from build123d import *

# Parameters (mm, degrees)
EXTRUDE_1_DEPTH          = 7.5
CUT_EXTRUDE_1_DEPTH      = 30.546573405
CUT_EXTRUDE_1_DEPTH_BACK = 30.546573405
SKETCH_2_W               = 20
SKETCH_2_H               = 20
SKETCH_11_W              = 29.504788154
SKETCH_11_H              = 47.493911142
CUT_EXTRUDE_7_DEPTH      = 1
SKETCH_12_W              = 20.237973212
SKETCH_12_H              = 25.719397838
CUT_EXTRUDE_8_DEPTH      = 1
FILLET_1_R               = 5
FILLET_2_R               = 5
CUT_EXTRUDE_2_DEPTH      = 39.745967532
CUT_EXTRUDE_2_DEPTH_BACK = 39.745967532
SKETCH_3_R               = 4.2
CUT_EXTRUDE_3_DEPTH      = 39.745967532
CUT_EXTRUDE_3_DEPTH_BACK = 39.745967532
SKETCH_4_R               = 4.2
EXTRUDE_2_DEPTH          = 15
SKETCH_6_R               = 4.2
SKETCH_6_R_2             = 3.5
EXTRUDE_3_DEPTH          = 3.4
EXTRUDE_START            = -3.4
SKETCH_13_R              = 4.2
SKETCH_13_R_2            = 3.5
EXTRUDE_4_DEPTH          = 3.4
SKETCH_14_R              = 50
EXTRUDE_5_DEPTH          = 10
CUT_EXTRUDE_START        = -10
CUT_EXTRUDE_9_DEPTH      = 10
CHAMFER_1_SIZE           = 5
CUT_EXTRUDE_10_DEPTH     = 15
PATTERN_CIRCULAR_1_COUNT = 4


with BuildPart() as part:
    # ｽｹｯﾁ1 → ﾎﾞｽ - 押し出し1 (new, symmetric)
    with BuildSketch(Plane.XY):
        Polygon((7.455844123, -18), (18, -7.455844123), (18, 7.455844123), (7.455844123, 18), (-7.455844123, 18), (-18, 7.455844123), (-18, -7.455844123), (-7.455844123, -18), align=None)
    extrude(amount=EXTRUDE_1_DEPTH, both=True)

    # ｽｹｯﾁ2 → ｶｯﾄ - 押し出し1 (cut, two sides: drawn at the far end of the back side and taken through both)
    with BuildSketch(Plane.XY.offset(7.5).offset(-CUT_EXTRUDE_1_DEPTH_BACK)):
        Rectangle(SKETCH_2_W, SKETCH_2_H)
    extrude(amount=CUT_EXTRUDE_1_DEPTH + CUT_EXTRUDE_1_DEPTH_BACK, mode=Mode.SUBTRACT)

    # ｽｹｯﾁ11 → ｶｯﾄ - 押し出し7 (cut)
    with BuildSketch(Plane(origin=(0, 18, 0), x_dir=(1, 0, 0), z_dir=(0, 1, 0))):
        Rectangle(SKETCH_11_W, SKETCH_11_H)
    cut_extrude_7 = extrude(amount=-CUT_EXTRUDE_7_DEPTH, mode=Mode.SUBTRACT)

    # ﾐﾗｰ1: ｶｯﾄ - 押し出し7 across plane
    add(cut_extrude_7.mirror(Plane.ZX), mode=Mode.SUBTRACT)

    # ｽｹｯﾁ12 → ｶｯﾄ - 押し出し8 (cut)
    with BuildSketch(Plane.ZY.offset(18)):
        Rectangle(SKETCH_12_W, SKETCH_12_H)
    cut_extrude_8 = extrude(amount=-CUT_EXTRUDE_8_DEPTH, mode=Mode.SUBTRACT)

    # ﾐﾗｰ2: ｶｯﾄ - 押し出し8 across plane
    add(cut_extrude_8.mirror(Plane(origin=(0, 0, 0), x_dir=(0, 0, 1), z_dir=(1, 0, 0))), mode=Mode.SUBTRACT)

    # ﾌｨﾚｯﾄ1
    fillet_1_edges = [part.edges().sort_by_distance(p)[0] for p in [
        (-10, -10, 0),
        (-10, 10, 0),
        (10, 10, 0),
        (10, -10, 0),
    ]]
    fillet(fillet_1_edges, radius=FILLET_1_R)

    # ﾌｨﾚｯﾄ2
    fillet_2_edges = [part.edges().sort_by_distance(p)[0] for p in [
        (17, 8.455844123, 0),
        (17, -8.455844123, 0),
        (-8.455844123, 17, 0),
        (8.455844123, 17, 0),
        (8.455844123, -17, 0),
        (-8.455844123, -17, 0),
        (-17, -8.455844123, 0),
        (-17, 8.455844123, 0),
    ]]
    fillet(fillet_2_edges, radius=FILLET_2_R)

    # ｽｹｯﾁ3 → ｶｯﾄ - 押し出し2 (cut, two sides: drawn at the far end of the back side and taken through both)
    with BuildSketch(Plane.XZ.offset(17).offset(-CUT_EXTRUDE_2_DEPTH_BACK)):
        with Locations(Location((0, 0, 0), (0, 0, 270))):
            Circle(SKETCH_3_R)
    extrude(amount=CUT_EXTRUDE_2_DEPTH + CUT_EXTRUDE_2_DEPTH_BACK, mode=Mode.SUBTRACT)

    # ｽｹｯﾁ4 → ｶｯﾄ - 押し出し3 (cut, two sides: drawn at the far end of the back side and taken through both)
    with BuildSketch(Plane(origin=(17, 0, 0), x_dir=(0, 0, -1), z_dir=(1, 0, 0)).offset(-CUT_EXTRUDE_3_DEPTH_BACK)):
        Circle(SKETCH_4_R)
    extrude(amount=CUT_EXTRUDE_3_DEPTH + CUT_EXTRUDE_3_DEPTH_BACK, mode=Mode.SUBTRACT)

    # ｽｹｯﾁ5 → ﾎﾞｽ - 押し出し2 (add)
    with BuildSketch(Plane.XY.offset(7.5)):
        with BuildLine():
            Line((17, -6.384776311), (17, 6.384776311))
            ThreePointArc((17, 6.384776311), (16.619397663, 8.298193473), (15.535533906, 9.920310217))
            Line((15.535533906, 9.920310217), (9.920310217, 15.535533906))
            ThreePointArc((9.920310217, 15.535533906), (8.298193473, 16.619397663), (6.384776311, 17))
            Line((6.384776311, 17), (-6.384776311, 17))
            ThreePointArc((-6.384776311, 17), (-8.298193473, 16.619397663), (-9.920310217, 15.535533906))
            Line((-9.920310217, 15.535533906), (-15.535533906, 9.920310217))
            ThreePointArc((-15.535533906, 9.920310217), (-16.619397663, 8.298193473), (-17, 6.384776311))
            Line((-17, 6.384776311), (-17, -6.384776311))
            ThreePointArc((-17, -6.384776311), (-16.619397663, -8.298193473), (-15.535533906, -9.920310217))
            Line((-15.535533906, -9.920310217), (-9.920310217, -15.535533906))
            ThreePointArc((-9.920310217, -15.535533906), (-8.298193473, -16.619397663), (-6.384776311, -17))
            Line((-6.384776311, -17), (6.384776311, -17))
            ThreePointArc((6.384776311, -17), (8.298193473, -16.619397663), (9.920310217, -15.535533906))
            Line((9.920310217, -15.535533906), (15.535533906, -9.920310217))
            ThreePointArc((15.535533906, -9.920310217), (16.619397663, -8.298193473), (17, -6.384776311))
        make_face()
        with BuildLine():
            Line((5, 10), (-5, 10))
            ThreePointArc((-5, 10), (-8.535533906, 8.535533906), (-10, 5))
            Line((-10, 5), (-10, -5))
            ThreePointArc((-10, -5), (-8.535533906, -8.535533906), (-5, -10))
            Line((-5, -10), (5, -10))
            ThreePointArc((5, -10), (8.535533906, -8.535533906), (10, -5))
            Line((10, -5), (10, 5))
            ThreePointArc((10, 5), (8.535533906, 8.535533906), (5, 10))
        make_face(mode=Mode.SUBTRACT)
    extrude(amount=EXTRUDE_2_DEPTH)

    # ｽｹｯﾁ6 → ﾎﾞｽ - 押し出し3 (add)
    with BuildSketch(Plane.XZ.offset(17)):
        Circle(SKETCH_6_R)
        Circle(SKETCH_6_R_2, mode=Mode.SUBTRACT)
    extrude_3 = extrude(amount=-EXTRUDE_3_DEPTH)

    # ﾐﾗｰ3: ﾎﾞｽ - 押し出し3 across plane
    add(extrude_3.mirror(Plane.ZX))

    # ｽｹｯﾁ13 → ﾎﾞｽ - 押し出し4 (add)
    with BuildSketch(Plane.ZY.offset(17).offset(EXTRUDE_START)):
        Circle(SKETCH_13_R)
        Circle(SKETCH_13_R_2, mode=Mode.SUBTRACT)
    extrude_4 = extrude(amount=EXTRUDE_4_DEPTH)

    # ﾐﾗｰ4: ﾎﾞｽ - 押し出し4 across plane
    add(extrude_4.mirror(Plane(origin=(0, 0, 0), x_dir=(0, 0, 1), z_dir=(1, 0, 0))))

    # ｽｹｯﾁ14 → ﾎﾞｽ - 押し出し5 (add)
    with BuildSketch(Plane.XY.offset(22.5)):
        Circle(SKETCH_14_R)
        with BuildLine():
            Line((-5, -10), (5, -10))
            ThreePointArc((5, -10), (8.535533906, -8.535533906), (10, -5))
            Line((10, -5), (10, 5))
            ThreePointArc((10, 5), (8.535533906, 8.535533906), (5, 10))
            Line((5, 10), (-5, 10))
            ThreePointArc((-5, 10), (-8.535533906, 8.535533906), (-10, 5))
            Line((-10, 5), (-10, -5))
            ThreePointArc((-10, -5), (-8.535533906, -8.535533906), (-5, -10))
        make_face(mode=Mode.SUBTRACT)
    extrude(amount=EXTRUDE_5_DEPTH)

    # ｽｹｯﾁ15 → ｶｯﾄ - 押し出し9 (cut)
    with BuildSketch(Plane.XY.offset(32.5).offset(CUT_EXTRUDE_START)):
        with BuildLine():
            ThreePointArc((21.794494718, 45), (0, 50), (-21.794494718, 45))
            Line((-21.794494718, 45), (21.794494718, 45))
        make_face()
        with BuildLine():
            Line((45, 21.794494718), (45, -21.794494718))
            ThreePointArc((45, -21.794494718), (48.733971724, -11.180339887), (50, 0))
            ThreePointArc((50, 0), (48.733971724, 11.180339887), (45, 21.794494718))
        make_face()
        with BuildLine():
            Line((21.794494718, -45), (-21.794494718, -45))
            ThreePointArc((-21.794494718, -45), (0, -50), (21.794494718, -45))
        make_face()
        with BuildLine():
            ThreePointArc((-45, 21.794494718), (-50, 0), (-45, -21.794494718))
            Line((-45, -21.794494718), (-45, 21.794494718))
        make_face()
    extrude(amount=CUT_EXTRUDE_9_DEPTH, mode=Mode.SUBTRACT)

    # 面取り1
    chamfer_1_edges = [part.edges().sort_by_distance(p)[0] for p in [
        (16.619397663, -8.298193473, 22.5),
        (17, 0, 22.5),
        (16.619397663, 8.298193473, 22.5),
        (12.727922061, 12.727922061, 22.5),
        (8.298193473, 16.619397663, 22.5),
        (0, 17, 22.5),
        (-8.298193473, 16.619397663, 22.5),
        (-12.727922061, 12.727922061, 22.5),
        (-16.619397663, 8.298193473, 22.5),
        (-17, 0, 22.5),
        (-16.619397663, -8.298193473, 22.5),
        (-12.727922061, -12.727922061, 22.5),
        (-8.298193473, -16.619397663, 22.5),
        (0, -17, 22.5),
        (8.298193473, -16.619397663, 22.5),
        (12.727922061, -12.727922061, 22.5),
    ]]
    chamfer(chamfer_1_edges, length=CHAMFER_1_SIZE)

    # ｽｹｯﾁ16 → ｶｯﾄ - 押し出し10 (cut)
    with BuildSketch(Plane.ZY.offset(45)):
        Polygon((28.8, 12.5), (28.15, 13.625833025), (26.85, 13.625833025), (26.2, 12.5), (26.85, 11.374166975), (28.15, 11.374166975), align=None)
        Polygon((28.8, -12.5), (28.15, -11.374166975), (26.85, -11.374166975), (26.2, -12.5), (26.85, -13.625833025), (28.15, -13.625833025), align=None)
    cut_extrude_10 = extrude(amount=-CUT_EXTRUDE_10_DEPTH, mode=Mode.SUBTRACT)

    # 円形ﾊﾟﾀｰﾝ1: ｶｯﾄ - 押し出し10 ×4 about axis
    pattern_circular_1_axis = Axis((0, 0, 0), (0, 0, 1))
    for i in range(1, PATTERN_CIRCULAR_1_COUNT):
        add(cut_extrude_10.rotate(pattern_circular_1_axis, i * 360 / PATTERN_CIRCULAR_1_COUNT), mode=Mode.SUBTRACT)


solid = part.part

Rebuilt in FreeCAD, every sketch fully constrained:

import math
import FreeCAD as App
import Part
import Sketcher

V = App.Vector
Q = App.Units.Quantity


def edges_at(feature, points):
    """Names of the edges that pass closest to the given points."""
    edges = feature.Shape.Edges
    near = lambda p: min(range(len(edges)), key=lambda i: edges[i].distToShape(Part.Vertex(*p))[0])
    return sorted({f"Edge{near(p) + 1}" for p in points})


def add_polygon(sketch, points):
    """Adds a closed chain of lines whose ends are joined by coincident constraints."""
    first, n = sketch.GeometryCount, len(points)
    for a, b in zip(points, points[1:] + points[:1]):
        sketch.addGeometry(Part.LineSegment(App.Vector(*a, 0), App.Vector(*b, 0)), False)
    for i in range(n):
        sketch.addConstraint(Sketcher.Constraint("Coincident", first + i, 2, first + (i + 1) % n, 1))

doc = App.newDocument("Part")
body = doc.addObject("PartDesign::Body", "Body")

# Sketch on XY plane
sketch1 = body.newObject("Sketcher::SketchObject", "Sketch")
sketch1.AttachmentSupport = (doc.getObject("XY_Plane"), [""])
sketch1.MapMode = "FlatFace"
add_polygon(sketch1, [(7, -18), (18, -7), (18, 7), (7, 18), (-7, 18), (-18, 7), (-18, -7), (-7, -18)])  # lines 0-7
sketch1.addConstraint(Sketcher.Constraint("Vertical", 1))
sketch1.addConstraint(Sketcher.Constraint("Horizontal", 3))
sketch1.addConstraint(Sketcher.Constraint("Vertical", 5))
sketch1.addConstraint(Sketcher.Constraint("Horizontal", 7))
sketch1.addConstraint(Sketcher.Constraint("Symmetric", 0, 2, 4, 2, -1, 1))
sketch1.addConstraint(Sketcher.Constraint("Symmetric", 2, 2, 6, 2, -1, 1))
sketch1.addConstraint(Sketcher.Constraint("Perpendicular", 0, 2))
sketch1.addConstraint(Sketcher.Constraint("Perpendicular", 2, 4))
sketch1.addConstraint(Sketcher.Constraint("Perpendicular", 4, 6))
sketch1.addConstraint(Sketcher.Constraint("Horizontal", 1, 2, 4, 2))
sketch1.addConstraint(Sketcher.Constraint("Vertical", 3, 2, 6, 2))
sketch1.addConstraint(Sketcher.Constraint("Equal", 7, 1))
sketch1.addConstraint(Sketcher.Constraint("DistanceX", -1, 1, 0, 2, Q("18 mm")))
sketch1.addConstraint(Sketcher.Constraint("DistanceX", 3, 2, 3, 1, Q("14.911688 mm")))
pad1 = body.newObject("PartDesign::Pad", "Pad")
pad1.Profile = sketch1
pad1.Length = 15
pad1.Midplane = True

# Sketch on XY plane
sketch2 = body.newObject("Sketcher::SketchObject", "Sketch001")
sketch2.AttachmentSupport = (doc.getObject("XY_Plane"), [""])
sketch2.MapMode = "FlatFace"
sketch2.AttachmentOffset = App.Placement(V(0, 0, 7.5), App.Rotation())
add_polygon(sketch2, [(-10, 10), (-10, -10), (10, -10), (10, 10)])  # lines 0-3
sketch2.addConstraint(Sketcher.Constraint("Vertical", 0))
sketch2.addConstraint(Sketcher.Constraint("Horizontal", 1))
sketch2.addConstraint(Sketcher.Constraint("Vertical", 2))
sketch2.addConstraint(Sketcher.Constraint("Horizontal", 3))
sketch2.addConstraint(Sketcher.Constraint("Symmetric", 0, 2, 2, 2, -1, 1))
sketch2.addConstraint(Sketcher.Constraint("Equal", 3, 0))
sketch2.addConstraint(Sketcher.Constraint("DistanceX", 1, 1, 1, 2, Q("20 mm")))
pocket1 = body.newObject("PartDesign::Pocket", "Pocket")
pocket1.Profile = sketch2
pocket1.Type = "ThroughAll"
pocket1.Midplane = True

# Sketch on XZ plane
sketch3 = body.newObject("Sketcher::SketchObject", "Sketch002")
sketch3.AttachmentSupport = (doc.getObject("XZ_Plane"), [""])
sketch3.MapMode = "FlatFace"
sketch3.AttachmentOffset = App.Placement(V(0, 0, -18), App.Rotation())
add_polygon(sketch3, [(-15, -24), (-15, 24), (15, 24), (15, -24)])  # lines 0-3
sketch3.addConstraint(Sketcher.Constraint("Vertical", 0))
sketch3.addConstraint(Sketcher.Constraint("Horizontal", 1))
sketch3.addConstraint(Sketcher.Constraint("Vertical", 2))
sketch3.addConstraint(Sketcher.Constraint("Horizontal", 3))
sketch3.addConstraint(Sketcher.Constraint("Symmetric", 0, 2, 2, 2, -1, 1))
sketch3.addConstraint(Sketcher.Constraint("DistanceX", 1, 1, 1, 2, Q("29.504788 mm")))
sketch3.addConstraint(Sketcher.Constraint("DistanceY", 0, 1, 0, 2, Q("47.493911 mm")))
pocket2 = body.newObject("PartDesign::Pocket", "Pocket001")
pocket2.Profile = sketch3
pocket2.Length = 1
pocket2.Reversed = True
doc.recompute()

mirrored = body.newObject("PartDesign::Mirrored", "Mirrored")
mirrored.Originals = [pocket2]
mirrored.MirrorPlane = (doc.getObject("XZ_Plane"), [""])
body.Tip = mirrored

# Sketch on YZ plane
sketch4 = body.newObject("Sketcher::SketchObject", "Sketch003")
sketch4.AttachmentSupport = (doc.getObject("YZ_Plane"), [""])
sketch4.MapMode = "FlatFace"
sketch4.AttachmentOffset = App.Placement(V(0, 0, -18), App.Rotation())
add_polygon(sketch4, [(13, -10), (-13, -10), (-13, 10), (13, 10)])  # lines 0-3
sketch4.addConstraint(Sketcher.Constraint("Horizontal", 0))
sketch4.addConstraint(Sketcher.Constraint("Vertical", 1))
sketch4.addConstraint(Sketcher.Constraint("Horizontal", 2))
sketch4.addConstraint(Sketcher.Constraint("Vertical", 3))
sketch4.addConstraint(Sketcher.Constraint("Symmetric", 0, 2, 2, 2, -1, 1))
sketch4.addConstraint(Sketcher.Constraint("DistanceX", 0, 2, -1, 1, Q("12.859699 mm")))
sketch4.addConstraint(Sketcher.Constraint("DistanceY", 1, 1, 1, 2, Q("20.237973 mm")))
pocket3 = body.newObject("PartDesign::Pocket", "Pocket002")
pocket3.Profile = sketch4
pocket3.Length = 1
pocket3.Reversed = True
doc.recompute()

mirrored2 = body.newObject("PartDesign::Mirrored", "Mirrored001")
mirrored2.Originals = [pocket3]
mirrored2.MirrorPlane = (doc.getObject("YZ_Plane"), [""])
body.Tip = mirrored2
doc.recompute()

fillet = body.newObject("PartDesign::Fillet", "Fillet")
fillet.Base = (mirrored2, edges_at(mirrored2, [
    (-10, -10, 0),
    (-10, 10, 0),
    (10, 10, 0),
    (10, -10, 0),
]))
fillet.Radius = 5
doc.recompute()

fillet2 = body.newObject("PartDesign::Fillet", "Fillet001")
fillet2.Base = (fillet, edges_at(fillet, [
    (17, 8.456, 0),
    (17, -8.456, 0),
    (-8.456, 17, 0),
    (8.456, 17, 0),
    (8.456, -17, 0),
    (-8.456, -17, 0),
    (-17, -8.456, 0),
    (-17, 8.456, 0),
]))
fillet2.Radius = 5

# Sketch on XZ plane
sketch5 = body.newObject("Sketcher::SketchObject", "Sketch004")
sketch5.AttachmentSupport = (doc.getObject("XZ_Plane"), [""])
sketch5.MapMode = "FlatFace"
sketch5.AttachmentOffset = App.Placement(V(0, 0, 17), App.Rotation())
sketch5.addGeometry(Part.Circle(V(0, 0, 0), V(0, 0, 1), 4.2), False)
sketch5.addConstraint(Sketcher.Constraint("Coincident", 0, 3, -1, 1))
sketch5.addConstraint(Sketcher.Constraint("Diameter", 0, Q("8.4 mm")))
pocket4 = body.newObject("PartDesign::Pocket", "Pocket003")
pocket4.Profile = sketch5
pocket4.Type = "ThroughAll"
pocket4.Midplane = True

# Sketch on YZ plane
sketch6 = body.newObject("Sketcher::SketchObject", "Sketch005")
sketch6.AttachmentSupport = (doc.getObject("YZ_Plane"), [""])
sketch6.MapMode = "FlatFace"
sketch6.AttachmentOffset = App.Placement(V(0, 0, 17), App.Rotation())
sketch6.addGeometry(Part.Circle(V(0, 0, 0), V(0, 0, 1), 4.2), False)
sketch6.addConstraint(Sketcher.Constraint("Coincident", 0, 3, -1, 1))
sketch6.addConstraint(Sketcher.Constraint("Diameter", 0, Q("8.4 mm")))
pocket5 = body.newObject("PartDesign::Pocket", "Pocket004")
pocket5.Profile = sketch6
pocket5.Type = "ThroughAll"
pocket5.Midplane = True

# Sketch on XY plane
sketch7 = body.newObject("Sketcher::SketchObject", "Sketch006")
sketch7.AttachmentSupport = (doc.getObject("XY_Plane"), [""])
sketch7.MapMode = "FlatFace"
sketch7.AttachmentOffset = App.Placement(V(0, 0, 7.5), App.Rotation())
sketch7.addGeometry(Part.LineSegment(V(17, -6.4, 0), V(17, 6.4, 0)), False)
sketch7.addGeometry(Part.ArcOfCircle(Part.Circle(V(12, 6.4, 0), V(0, 0, 1), 5), math.radians(0), math.radians(45)), False)
sketch7.addGeometry(Part.LineSegment(V(15.5, 9.9, 0), V(9.9, 15.5, 0)), False)
sketch7.addGeometry(Part.ArcOfCircle(Part.Circle(V(6.4, 12, 0), V(0, 0, 1), 5), math.radians(45), math.radians(90)), False)
sketch7.addGeometry(Part.LineSegment(V(6.4, 17, 0), V(-6.4, 17, 0)), False)
sketch7.addGeometry(Part.ArcOfCircle(Part.Circle(V(-6.4, 12, 0), V(0, 0, 1), 5), math.radians(90), math.radians(135)), False)
sketch7.addGeometry(Part.LineSegment(V(-9.9, 15.5, 0), V(-15.5, 9.9, 0)), False)
sketch7.addGeometry(Part.ArcOfCircle(Part.Circle(V(-12, 6.4, 0), V(0, 0, 1), 5), math.radians(135), math.radians(180)), False)
sketch7.addGeometry(Part.LineSegment(V(-17, 6.4, 0), V(-17, -6.4, 0)), False)
sketch7.addGeometry(Part.ArcOfCircle(Part.Circle(V(-12, -6.4, 0), V(0, 0, 1), 5), math.radians(180), math.radians(225)), False)
sketch7.addGeometry(Part.LineSegment(V(-15.5, -9.9, 0), V(-9.9, -15.5, 0)), False)
sketch7.addGeometry(Part.ArcOfCircle(Part.Circle(V(-6.4, -12, 0), V(0, 0, 1), 5), math.radians(-135), math.radians(-90)), False)
sketch7.addGeometry(Part.LineSegment(V(-6.4, -17, 0), V(6.4, -17, 0)), False)
sketch7.addGeometry(Part.ArcOfCircle(Part.Circle(V(6.4, -12, 0), V(0, 0, 1), 5), math.radians(-90), math.radians(-45)), False)
sketch7.addGeometry(Part.LineSegment(V(9.9, -15.5, 0), V(15.5, -9.9, 0)), False)
sketch7.addGeometry(Part.ArcOfCircle(Part.Circle(V(12, -6.4, 0), V(0, 0, 1), 5), math.radians(-45), math.radians(0)), False)
sketch7.addGeometry(Part.LineSegment(V(-5, 10, 0), V(5, 10, 0)), False)
sketch7.addGeometry(Part.ArcOfCircle(Part.Circle(V(5, 5, 0), V(0, 0, 1), 5), math.radians(0), math.radians(90)), False)
sketch7.addGeometry(Part.LineSegment(V(10, 5, 0), V(10, -5, 0)), False)
sketch7.addGeometry(Part.ArcOfCircle(Part.Circle(V(5, -5, 0), V(0, 0, 1), 5), math.radians(-90), math.radians(0)), False)
sketch7.addGeometry(Part.LineSegment(V(5, -10, 0), V(-5, -10, 0)), False)
sketch7.addGeometry(Part.ArcOfCircle(Part.Circle(V(-5, -5, 0), V(0, 0, 1), 5), math.radians(180), math.radians(270)), False)
sketch7.addGeometry(Part.LineSegment(V(-10, -5, 0), V(-10, 5, 0)), False)
sketch7.addGeometry(Part.ArcOfCircle(Part.Circle(V(-5, 5, 0), V(0, 0, 1), 5), math.radians(90), math.radians(180)), False)
sketch7.addConstraint(Sketcher.Constraint("Tangent", 0, 2, 1, 1))
sketch7.addConstraint(Sketcher.Constraint("Tangent", 1, 2, 2, 1))
sketch7.addConstraint(Sketcher.Constraint("Tangent", 2, 2, 3, 1))
sketch7.addConstraint(Sketcher.Constraint("Tangent", 3, 2, 4, 1))
sketch7.addConstraint(Sketcher.Constraint("Tangent", 4, 2, 5, 1))
sketch7.addConstraint(Sketcher.Constraint("Tangent", 5, 2, 6, 1))
sketch7.addConstraint(Sketcher.Constraint("Tangent", 6, 2, 7, 1))
sketch7.addConstraint(Sketcher.Constraint("Tangent", 7, 2, 8, 1))
sketch7.addConstraint(Sketcher.Constraint("Tangent", 8, 2, 9, 1))
sketch7.addConstraint(Sketcher.Constraint("Tangent", 9, 2, 10, 1))
sketch7.addConstraint(Sketcher.Constraint("Tangent", 10, 2, 11, 1))
sketch7.addConstraint(Sketcher.Constraint("Tangent", 11, 2, 12, 1))
sketch7.addConstraint(Sketcher.Constraint("Tangent", 12, 2, 13, 1))
sketch7.addConstraint(Sketcher.Constraint("Tangent", 13, 2, 14, 1))
sketch7.addConstraint(Sketcher.Constraint("Tangent", 14, 2, 15, 1))
sketch7.addConstraint(Sketcher.Constraint("Tangent", 15, 2, 0, 1))
sketch7.addConstraint(Sketcher.Constraint("Tangent", 16, 2, 17, 2))
sketch7.addConstraint(Sketcher.Constraint("Tangent", 17, 1, 18, 1))
sketch7.addConstraint(Sketcher.Constraint("Tangent", 18, 2, 19, 2))
sketch7.addConstraint(Sketcher.Constraint("Tangent", 19, 1, 20, 1))
sketch7.addConstraint(Sketcher.Constraint("Tangent", 20, 2, 21, 2))
sketch7.addConstraint(Sketcher.Constraint("Tangent", 21, 1, 22, 1))
sketch7.addConstraint(Sketcher.Constraint("Tangent", 22, 2, 23, 2))
sketch7.addConstraint(Sketcher.Constraint("Tangent", 23, 1, 16, 1))
sketch7.addConstraint(Sketcher.Constraint("Vertical", 0))
sketch7.addConstraint(Sketcher.Constraint("Horizontal", 4))
sketch7.addConstraint(Sketcher.Constraint("Vertical", 8))
sketch7.addConstraint(Sketcher.Constraint("Horizontal", 12))
sketch7.addConstraint(Sketcher.Constraint("Horizontal", 16))
sketch7.addConstraint(Sketcher.Constraint("Vertical", 18))
sketch7.addConstraint(Sketcher.Constraint("Horizontal", 20))
sketch7.addConstraint(Sketcher.Constraint("Vertical", 22))
sketch7.addConstraint(Sketcher.Constraint("Equal", 1, 3))
sketch7.addConstraint(Sketcher.Constraint("Equal", 3, 5))
sketch7.addConstraint(Sketcher.Constraint("Equal", 5, 7))
sketch7.addConstraint(Sketcher.Constraint("Equal", 7, 9))
sketch7.addConstraint(Sketcher.Constraint("Equal", 9, 11))
sketch7.addConstraint(Sketcher.Constraint("Equal", 11, 13))
sketch7.addConstraint(Sketcher.Constraint("Equal", 13, 15))
sketch7.addConstraint(Sketcher.Constraint("Equal", 15, 17))
sketch7.addConstraint(Sketcher.Constraint("Equal", 17, 19))
sketch7.addConstraint(Sketcher.Constraint("Equal", 19, 21))
sketch7.addConstraint(Sketcher.Constraint("Equal", 21, 23))
sketch7.addConstraint(Sketcher.Constraint("Symmetric", 1, 3, 9, 3, -1, 1))
sketch7.addConstraint(Sketcher.Constraint("Symmetric", 3, 3, 11, 3, -1, 1))
sketch7.addConstraint(Sketcher.Constraint("Symmetric", 17, 3, 21, 3, -1, 1))
sketch7.addConstraint(Sketcher.Constraint("Symmetric", 5, 2, 13, 2, -1, 1))
sketch7.addConstraint(Sketcher.Constraint("Symmetric", 2, 2, 5, 2, -2))
sketch7.addConstraint(Sketcher.Constraint("Perpendicular", 2, 6))
sketch7.addConstraint(Sketcher.Constraint("Equal", 12, 0))
sketch7.addConstraint(Sketcher.Constraint("Equal", 20, 18))
sketch7.addConstraint(Sketcher.Constraint("Radius", 1, Q("5 mm")))
sketch7.addConstraint(Sketcher.Constraint("DistanceX", 16, 1, 16, 2, Q("10 mm")))
sketch7.addConstraint(Sketcher.Constraint("DistanceX", -1, 1, 1, 3, Q("12 mm")))
sketch7.addConstraint(Sketcher.Constraint("DistanceX", 4, 2, 4, 1, Q("12.769553 mm")))
pad2 = body.newObject("PartDesign::Pad", "Pad001")
pad2.Profile = sketch7
pad2.Length = 15

# Sketch on XZ plane
sketch8 = body.newObject("Sketcher::SketchObject", "Sketch007")
sketch8.AttachmentSupport = (doc.getObject("XZ_Plane"), [""])
sketch8.MapMode = "FlatFace"
sketch8.AttachmentOffset = App.Placement(V(0, 0, 17), App.Rotation())
sketch8.addGeometry(Part.Circle(V(0, 0, 0), V(0, 0, 1), 4.2), False)
sketch8.addGeometry(Part.Circle(V(0, 0, 0), V(0, 0, 1), 3.5), False)
sketch8.addConstraint(Sketcher.Constraint("Coincident", 0, 3, -1, 1))
sketch8.addConstraint(Sketcher.Constraint("Coincident", 1, 3, -1, 1))
sketch8.addConstraint(Sketcher.Constraint("Diameter", 1, Q("7 mm")))
sketch8.addConstraint(Sketcher.Constraint("Diameter", 0, Q("8.4 mm")))
pad3 = body.newObject("PartDesign::Pad", "Pad002")
pad3.Profile = sketch8
pad3.Length = 3.4
pad3.Reversed = True
doc.recompute()

mirrored3 = body.newObject("PartDesign::Mirrored", "Mirrored002")
mirrored3.Originals = [pad3]
mirrored3.MirrorPlane = (doc.getObject("XZ_Plane"), [""])
body.Tip = mirrored3

# Sketch on YZ plane
sketch9 = body.newObject("Sketcher::SketchObject", "Sketch008")
sketch9.AttachmentSupport = (doc.getObject("YZ_Plane"), [""])
sketch9.MapMode = "FlatFace"
sketch9.AttachmentOffset = App.Placement(V(0, 0, -13.6), App.Rotation())
sketch9.addGeometry(Part.Circle(V(0, 0, 0), V(0, 0, 1), 4.2), False)
sketch9.addGeometry(Part.Circle(V(0, 0, 0), V(0, 0, 1), 3.5), False)
sketch9.addConstraint(Sketcher.Constraint("Coincident", 0, 3, -1, 1))
sketch9.addConstraint(Sketcher.Constraint("Coincident", 1, 3, -1, 1))
sketch9.addConstraint(Sketcher.Constraint("Diameter", 1, Q("7 mm")))
sketch9.addConstraint(Sketcher.Constraint("Diameter", 0, Q("8.4 mm")))
pad4 = body.newObject("PartDesign::Pad", "Pad003")
pad4.Profile = sketch9
pad4.Length = 3.4
pad4.Reversed = True
doc.recompute()

mirrored4 = body.newObject("PartDesign::Mirrored", "Mirrored003")
mirrored4.Originals = [pad4]
mirrored4.MirrorPlane = (doc.getObject("YZ_Plane"), [""])
body.Tip = mirrored4

# Sketch on XY plane
sketch10 = body.newObject("Sketcher::SketchObject", "Sketch009")
sketch10.AttachmentSupport = (doc.getObject("XY_Plane"), [""])
sketch10.MapMode = "FlatFace"
sketch10.AttachmentOffset = App.Placement(V(0, 0, 22.5), App.Rotation())
sketch10.addGeometry(Part.Circle(V(0, 0, 0), V(0, 0, 1), 50), False)
sketch10.addGeometry(Part.LineSegment(V(5, -10, 0), V(-5, -10, 0)), False)
sketch10.addGeometry(Part.ArcOfCircle(Part.Circle(V(-5, -5, 0), V(0, 0, 1), 5), math.radians(180), math.radians(270)), False)
sketch10.addGeometry(Part.LineSegment(V(-10, -5, 0), V(-10, 5, 0)), False)
sketch10.addGeometry(Part.ArcOfCircle(Part.Circle(V(-5, 5, 0), V(0, 0, 1), 5), math.radians(90), math.radians(180)), False)
sketch10.addGeometry(Part.LineSegment(V(-5, 10, 0), V(5, 10, 0)), False)
sketch10.addGeometry(Part.ArcOfCircle(Part.Circle(V(5, 5, 0), V(0, 0, 1), 5), math.radians(0), math.radians(90)), False)
sketch10.addGeometry(Part.LineSegment(V(10, 5, 0), V(10, -5, 0)), False)
sketch10.addGeometry(Part.ArcOfCircle(Part.Circle(V(5, -5, 0), V(0, 0, 1), 5), math.radians(-90), math.radians(0)), False)
sketch10.addConstraint(Sketcher.Constraint("Tangent", 1, 2, 2, 2))
sketch10.addConstraint(Sketcher.Constraint("Tangent", 2, 1, 3, 1))
sketch10.addConstraint(Sketcher.Constraint("Tangent", 3, 2, 4, 2))
sketch10.addConstraint(Sketcher.Constraint("Tangent", 4, 1, 5, 1))
sketch10.addConstraint(Sketcher.Constraint("Tangent", 5, 2, 6, 2))
sketch10.addConstraint(Sketcher.Constraint("Tangent", 6, 1, 7, 1))
sketch10.addConstraint(Sketcher.Constraint("Tangent", 7, 2, 8, 2))
sketch10.addConstraint(Sketcher.Constraint("Tangent", 8, 1, 1, 1))
sketch10.addConstraint(Sketcher.Constraint("Horizontal", 1))
sketch10.addConstraint(Sketcher.Constraint("Vertical", 3))
sketch10.addConstraint(Sketcher.Constraint("Horizontal", 5))
sketch10.addConstraint(Sketcher.Constraint("Vertical", 7))
sketch10.addConstraint(Sketcher.Constraint("Coincident", 0, 3, -1, 1))
sketch10.addConstraint(Sketcher.Constraint("Equal", 2, 4))
sketch10.addConstraint(Sketcher.Constraint("Equal", 4, 6))
sketch10.addConstraint(Sketcher.Constraint("Equal", 6, 8))
sketch10.addConstraint(Sketcher.Constraint("Symmetric", 2, 3, 6, 3, -1, 1))
sketch10.addConstraint(Sketcher.Constraint("Equal", 5, 3))
sketch10.addConstraint(Sketcher.Constraint("Diameter", 0, Q("100 mm")))
sketch10.addConstraint(Sketcher.Constraint("Radius", 2, Q("5 mm")))
sketch10.addConstraint(Sketcher.Constraint("DistanceX", 1, 2, 1, 1, Q("10 mm")))
pad5 = body.newObject("PartDesign::Pad", "Pad004")
pad5.Profile = sketch10
pad5.Length = 10

# Sketch on XY plane
sketch11 = body.newObject("Sketcher::SketchObject", "Sketch010")
sketch11.AttachmentSupport = (doc.getObject("XY_Plane"), [""])
sketch11.MapMode = "FlatFace"
sketch11.AttachmentOffset = App.Placement(V(0, 0, 22.5), App.Rotation())
sketch11.addGeometry(Part.ArcOfCircle(Part.Circle(V(0, 0, 0), V(0, 0, 1), 50), math.radians(64), math.radians(116)), False)
sketch11.addGeometry(Part.LineSegment(V(-22, 45, 0), V(22, 45, 0)), False)
sketch11.addGeometry(Part.LineSegment(V(45, 22, 0), V(45, -22, 0)), False)
sketch11.addGeometry(Part.ArcOfCircle(Part.Circle(V(0, 0, 0), V(0, 0, 1), 50), math.radians(-26), math.radians(0)), False)
sketch11.addGeometry(Part.ArcOfCircle(Part.Circle(V(0, 0, 0), V(0, 0, 1), 50), math.radians(0), math.radians(26)), False)
sketch11.addGeometry(Part.LineSegment(V(22, -45, 0), V(-22, -45, 0)), False)
sketch11.addGeometry(Part.ArcOfCircle(Part.Circle(V(0, 0, 0), V(0, 0, 1), 50), math.radians(-116), math.radians(-64)), False)
sketch11.addGeometry(Part.ArcOfCircle(Part.Circle(V(0, 0, 0), V(0, 0, 1), 50), math.radians(154), math.radians(206)), False)
sketch11.addGeometry(Part.LineSegment(V(-45, -22, 0), V(-45, 22, 0)), False)
sketch11.addConstraint(Sketcher.Constraint("Coincident", 0, 1, 1, 2))
sketch11.addConstraint(Sketcher.Constraint("Coincident", 1, 1, 0, 2))
sketch11.addConstraint(Sketcher.Constraint("Coincident", 2, 2, 3, 1))
sketch11.addConstraint(Sketcher.Constraint("Tangent", 3, 2, 4, 1))
sketch11.addConstraint(Sketcher.Constraint("Coincident", 4, 2, 2, 1))
sketch11.addConstraint(Sketcher.Constraint("Coincident", 5, 1, 6, 2))
sketch11.addConstraint(Sketcher.Constraint("Coincident", 6, 1, 5, 2))
sketch11.addConstraint(Sketcher.Constraint("Coincident", 7, 1, 8, 2))
sketch11.addConstraint(Sketcher.Constraint("Coincident", 8, 1, 7, 2))
sketch11.addConstraint(Sketcher.Constraint("Horizontal", 1))
sketch11.addConstraint(Sketcher.Constraint("Vertical", 2))
sketch11.addConstraint(Sketcher.Constraint("Horizontal", 5))
sketch11.addConstraint(Sketcher.Constraint("Vertical", 8))
sketch11.addConstraint(Sketcher.Constraint("Coincident", 0, 3, -1, 1))
sketch11.addConstraint(Sketcher.Constraint("Coincident", 3, 3, -1, 1))
sketch11.addConstraint(Sketcher.Constraint("Coincident", 6, 3, -1, 1))
sketch11.addConstraint(Sketcher.Constraint("Coincident", 7, 3, -1, 1))
sketch11.addConstraint(Sketcher.Constraint("Equal", 0, 3))
sketch11.addConstraint(Sketcher.Constraint("Equal", 3, 4))
sketch11.addConstraint(Sketcher.Constraint("Equal", 4, 6))
sketch11.addConstraint(Sketcher.Constraint("Equal", 6, 7))
sketch11.addConstraint(Sketcher.Constraint("PointOnObject", 3, 2, -1))
sketch11.addConstraint(Sketcher.Constraint("Horizontal", 4, 2, 7, 1))
sketch11.addConstraint(Sketcher.Constraint("Vertical", 0, 1, 5, 1))
sketch11.addConstraint(Sketcher.Constraint("Equal", 5, 2))
sketch11.addConstraint(Sketcher.Constraint("Radius", 0, Q("50 mm")))
sketch11.addConstraint(Sketcher.Constraint("DistanceY", -1, 1, 0, 1, Q("45 mm")))
pocket6 = body.newObject("PartDesign::Pocket", "Pocket005")
pocket6.Profile = sketch11
pocket6.Length = 10
pocket6.Reversed = True
doc.recompute()

chamfer = body.newObject("PartDesign::Chamfer", "Chamfer")
chamfer.Base = (pocket6, edges_at(pocket6, [
    (16.619, -8.298, 22.5),
    (17, 0, 22.5),
    (16.619, 8.298, 22.5),
    (12.728, 12.728, 22.5),
    (8.298, 16.619, 22.5),
    (0, 17, 22.5),
    (-8.298, 16.619, 22.5),
    (-12.728, 12.728, 22.5),
    (-16.619, 8.298, 22.5),
    (-17, 0, 22.5),
    (-16.619, -8.298, 22.5),
    (-12.728, -12.728, 22.5),
    (-8.298, -16.619, 22.5),
    (0, -17, 22.5),
    (8.298, -16.619, 22.5),
    (12.728, -12.728, 22.5),
]))
chamfer.Size = 5

# Sketch on YZ plane
sketch12 = body.newObject("Sketcher::SketchObject", "Sketch011")
sketch12.AttachmentSupport = (doc.getObject("YZ_Plane"), [""])
sketch12.MapMode = "FlatFace"
sketch12.AttachmentOffset = App.Placement(V(0, 0, -45), App.Rotation())
add_polygon(sketch12, [(12.5, 28.8), (13.6, 28.1), (13.6, 26.9), (12.5, 26.2), (11.4, 26.9), (11.4, 28.1)])  # lines 0-5
add_polygon(sketch12, [(-12.5, 28.8), (-11.4, 28.1), (-11.4, 26.9), (-12.5, 26.2), (-13.6, 26.9), (-13.6, 28.1)])  # lines 6-11
sketch12.addConstraint(Sketcher.Constraint("Vertical", 1))
sketch12.addConstraint(Sketcher.Constraint("Vertical", 4))
sketch12.addConstraint(Sketcher.Constraint("Vertical", 7))
sketch12.addConstraint(Sketcher.Constraint("Vertical", 10))
sketch12.addConstraint(Sketcher.Constraint("Symmetric", 4, 2, 6, 2, -2))
sketch12.addConstraint(Sketcher.Constraint("Symmetric", 2, 2, 8, 2, -2))
sketch12.addConstraint(Sketcher.Constraint("Symmetric", 1, 2, 9, 2, -2))
sketch12.addConstraint(Sketcher.Constraint("Symmetric", 5, 2, 11, 2, -2))
sketch12.addConstraint(Sketcher.Constraint("Parallel", 0, 3))
sketch12.addConstraint(Sketcher.Constraint("Parallel", 2, 5))
sketch12.addConstraint(Sketcher.Constraint("Parallel", 3, 6))
sketch12.addConstraint(Sketcher.Constraint("Parallel", 5, 8))
sketch12.addConstraint(Sketcher.Constraint("Parallel", 8, 11))
sketch12.addConstraint(Sketcher.Constraint("Horizontal", 1, 2, 3, 2))
sketch12.addConstraint(Sketcher.Constraint("Horizontal", 0, 2, 4, 2))
sketch12.addConstraint(Sketcher.Constraint("Angle", 0, Q("-30 deg")))
sketch12.addConstraint(Sketcher.Constraint("DistanceY", 1, 2, 1, 1, Q("1.3 mm")))
sketch12.addConstraint(Sketcher.Constraint("DistanceX", 6, 2, 0, 2, Q("25 mm")))
sketch12.addConstraint(Sketcher.Constraint("Distance", 0, Q("1.3 mm")))
sketch12.addConstraint(Sketcher.Constraint("DistanceY", -1, 1, 2, 2, Q("26.2 mm")))
pocket7 = body.newObject("PartDesign::Pocket", "Pocket006")
pocket7.Profile = sketch12
pocket7.Length = 15
pocket7.Reversed = True
doc.recompute()

polarpattern = body.newObject("PartDesign::PolarPattern", "PolarPattern")
polarpattern.Originals = [pocket7]
polarpattern.Axis = (doc.getObject("Z_Axis"), [""])
polarpattern.Angle = 360
polarpattern.Occurrences = 4
body.Tip = polarpattern

doc.recompute()
